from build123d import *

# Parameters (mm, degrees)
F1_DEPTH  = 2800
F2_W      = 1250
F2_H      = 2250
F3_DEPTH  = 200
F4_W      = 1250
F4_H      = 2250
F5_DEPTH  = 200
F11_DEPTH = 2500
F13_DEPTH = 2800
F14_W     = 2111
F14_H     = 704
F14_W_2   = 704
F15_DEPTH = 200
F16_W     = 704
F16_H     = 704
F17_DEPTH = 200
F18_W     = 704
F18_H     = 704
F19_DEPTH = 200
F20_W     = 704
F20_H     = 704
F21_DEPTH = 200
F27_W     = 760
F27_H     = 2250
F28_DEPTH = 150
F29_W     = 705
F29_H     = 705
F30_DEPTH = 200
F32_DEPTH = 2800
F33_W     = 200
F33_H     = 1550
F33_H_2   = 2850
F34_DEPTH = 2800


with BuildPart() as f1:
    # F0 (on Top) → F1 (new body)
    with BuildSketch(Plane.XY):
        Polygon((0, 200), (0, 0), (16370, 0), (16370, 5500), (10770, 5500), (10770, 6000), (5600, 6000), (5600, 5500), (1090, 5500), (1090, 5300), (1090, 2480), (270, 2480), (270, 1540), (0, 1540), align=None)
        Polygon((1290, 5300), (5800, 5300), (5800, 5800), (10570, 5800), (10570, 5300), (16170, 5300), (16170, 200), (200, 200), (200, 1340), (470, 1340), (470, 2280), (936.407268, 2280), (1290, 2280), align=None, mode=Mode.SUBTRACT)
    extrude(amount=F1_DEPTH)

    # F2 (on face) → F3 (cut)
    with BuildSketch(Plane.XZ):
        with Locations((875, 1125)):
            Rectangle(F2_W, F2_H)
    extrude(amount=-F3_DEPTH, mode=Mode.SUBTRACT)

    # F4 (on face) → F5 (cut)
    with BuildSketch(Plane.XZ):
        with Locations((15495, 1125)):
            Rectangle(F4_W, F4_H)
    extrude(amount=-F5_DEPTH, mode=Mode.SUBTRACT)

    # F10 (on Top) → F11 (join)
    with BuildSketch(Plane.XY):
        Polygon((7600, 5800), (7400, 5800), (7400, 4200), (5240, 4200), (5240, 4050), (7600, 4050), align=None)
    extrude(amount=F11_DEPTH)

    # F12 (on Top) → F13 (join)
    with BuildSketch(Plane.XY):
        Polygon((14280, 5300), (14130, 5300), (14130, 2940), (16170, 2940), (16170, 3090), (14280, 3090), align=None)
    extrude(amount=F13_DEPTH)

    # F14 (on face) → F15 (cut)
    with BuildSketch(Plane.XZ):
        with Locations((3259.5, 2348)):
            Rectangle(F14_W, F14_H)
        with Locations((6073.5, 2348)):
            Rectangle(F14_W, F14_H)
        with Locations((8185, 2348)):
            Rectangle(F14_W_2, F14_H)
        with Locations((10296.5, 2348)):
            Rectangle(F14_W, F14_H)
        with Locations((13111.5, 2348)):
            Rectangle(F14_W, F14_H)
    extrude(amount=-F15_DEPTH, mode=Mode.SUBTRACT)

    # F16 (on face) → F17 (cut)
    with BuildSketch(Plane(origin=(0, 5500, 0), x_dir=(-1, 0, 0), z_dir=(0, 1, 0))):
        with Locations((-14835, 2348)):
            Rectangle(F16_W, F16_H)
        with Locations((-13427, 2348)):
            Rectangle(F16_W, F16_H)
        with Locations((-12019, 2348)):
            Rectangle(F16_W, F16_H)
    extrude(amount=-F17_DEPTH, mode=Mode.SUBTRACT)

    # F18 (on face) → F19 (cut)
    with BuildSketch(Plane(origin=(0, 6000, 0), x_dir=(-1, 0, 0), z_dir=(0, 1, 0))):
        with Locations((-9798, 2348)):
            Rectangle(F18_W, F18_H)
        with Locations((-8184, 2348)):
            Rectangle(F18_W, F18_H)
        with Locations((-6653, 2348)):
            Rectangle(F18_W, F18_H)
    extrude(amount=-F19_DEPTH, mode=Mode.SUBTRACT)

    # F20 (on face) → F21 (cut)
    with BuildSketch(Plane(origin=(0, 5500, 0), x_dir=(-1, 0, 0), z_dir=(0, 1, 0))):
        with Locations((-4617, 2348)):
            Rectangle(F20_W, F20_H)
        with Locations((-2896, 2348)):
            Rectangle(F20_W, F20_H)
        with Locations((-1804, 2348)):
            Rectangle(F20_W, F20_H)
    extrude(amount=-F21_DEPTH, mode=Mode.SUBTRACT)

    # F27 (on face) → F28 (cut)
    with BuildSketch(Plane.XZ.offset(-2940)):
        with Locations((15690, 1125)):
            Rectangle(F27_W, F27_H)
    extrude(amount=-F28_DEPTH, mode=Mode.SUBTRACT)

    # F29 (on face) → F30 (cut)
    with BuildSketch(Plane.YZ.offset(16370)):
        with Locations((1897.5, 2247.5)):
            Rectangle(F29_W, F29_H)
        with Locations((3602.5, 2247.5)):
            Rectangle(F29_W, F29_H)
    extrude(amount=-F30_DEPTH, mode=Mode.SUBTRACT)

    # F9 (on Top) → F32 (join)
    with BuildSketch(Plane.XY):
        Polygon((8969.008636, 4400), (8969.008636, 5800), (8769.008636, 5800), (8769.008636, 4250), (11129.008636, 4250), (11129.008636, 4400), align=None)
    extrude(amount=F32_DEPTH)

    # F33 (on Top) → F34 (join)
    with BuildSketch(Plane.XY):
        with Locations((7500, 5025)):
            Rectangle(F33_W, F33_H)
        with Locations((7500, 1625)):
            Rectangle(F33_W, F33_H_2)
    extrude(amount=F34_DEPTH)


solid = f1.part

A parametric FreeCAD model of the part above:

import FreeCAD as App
import Part
import Sketcher
from FreeCAD import Vector


def add_polygon(sketch, points):
    """Adds a closed chain of lines whose ends are joined by coincident constraints."""
    first, n = sketch.GeometryCount, len(points)
    for a, b in zip(points, points[1:] + points[:1]):
        sketch.addGeometry(Part.LineSegment(App.Vector(*a, 0), App.Vector(*b, 0)), False)
    for i in range(n):
        sketch.addConstraint(Sketcher.Constraint("Coincident", first + i, 2, first + (i + 1) % n, 1))

doc = App.newDocument("Part")
body = doc.addObject("PartDesign::Body", "Body")

# Sketch on XY plane
sketch1 = doc.addObject("Sketcher::SketchObject", "Sketch")
body.addObject(sketch1)
sketch1.AttachmentSupport = (doc.XY_Plane, [""])
sketch1.MapMode = "FlatFace"
add_polygon(sketch1, [(0, 0), (16370, 0), (16370, 5500), (10770, 5500), (10770, 6000), (5600, 6000), (5600, 5500), (1090, 5500), (1090, 2480), (270, 2480), (270, 1540), (0, 1540)])  # lines 0-11
add_polygon(sketch1, [(1290, 2280), (1290, 5300), (5800, 5300), (5800, 5800), (10570, 5800), (10570, 5300), (16170, 5300), (16170, 200), (200, 200), (200, 1340), (470, 1340), (470, 2280)])  # lines 12-23
sketch1.addConstraint([
    Sketcher.Constraint("Horizontal", 0),
    Sketcher.Constraint("Vertical", 1),
    Sketcher.Constraint("Horizontal", 2),
    Sketcher.Constraint("Vertical", 3),
    Sketcher.Constraint("Horizontal", 4),
    Sketcher.Constraint("Vertical", 5),
    Sketcher.Constraint("Horizontal", 6),
    Sketcher.Constraint("Vertical", 7),
    Sketcher.Constraint("Horizontal", 8),
    Sketcher.Constraint("Vertical", 9),
    Sketcher.Constraint("Horizontal", 10),
    Sketcher.Constraint("Vertical", 11),
    Sketcher.Constraint("Vertical", 12),
    Sketcher.Constraint("Horizontal", 13),
    Sketcher.Constraint("Vertical", 14),
    Sketcher.Constraint("Horizontal", 15),
    Sketcher.Constraint("Vertical", 16),
    Sketcher.Constraint("Horizontal", 17),
    Sketcher.Constraint("Vertical", 18),
    Sketcher.Constraint("Horizontal", 19),
    Sketcher.Constraint("Vertical", 20),
    Sketcher.Constraint("Horizontal", 21),
    Sketcher.Constraint("Vertical", 22),
    Sketcher.Constraint("Horizontal", 23),
    Sketcher.Constraint("Coincident", 11, 2, -1, 1),
    Sketcher.Constraint("Horizontal", 2, 2, 5, 2),
    Sketcher.Constraint("Horizontal", 13, 2, 16, 2),
    Sketcher.Constraint("Equal", 6, 13),
    Sketcher.Constraint("Equal", 2, 17),
    Sketcher.Constraint("Equal", 10, 21),
    Sketcher.Constraint("Equal", 8, 23),
    Sketcher.Constraint("Equal", 7, 12),
    Sketcher.Constraint("Equal", 5, 14),
    Sketcher.Constraint("Equal", 9, 22),
    Sketcher.Constraint("DistanceX", 0, 1, 0, 2, 16370.0),
    Sketcher.Constraint("DistanceX", 2, 2, 2, 1, 5600.0),
    Sketcher.Constraint("DistanceX", 4, 2, 4, 1, 5170.0),
    Sketcher.Constraint("DistanceX", 6, 2, 6, 1, 4510.0),
    Sketcher.Constraint("DistanceX", 8, 2, 8, 1, 820.0),
    Sketcher.Constraint("DistanceX", 15, 1, 15, 2, 4770.0),
    Sketcher.Constraint("DistanceY", 1, 1, 1, 2, 5500.0),
    Sketcher.Constraint("DistanceY", 3, 1, 3, 2, 500.0),
    Sketcher.Constraint("DistanceY", 7, 2, 7, 1, 3020.0),
    Sketcher.Constraint("DistanceY", 9, 2, 9, 1, 940.0),
    Sketcher.Constraint("DistanceY", 18, 2, 18, 1, 5100.0),
    Sketcher.Constraint("DistanceX", -1, 1, 12, 2, 1290.0),
    Sketcher.Constraint("DistanceY", -1, 1, 12, 2, 5300.0),
])
pad1 = doc.addObject("PartDesign::Pad", "Pad")
body.addObject(pad1)
pad1.Profile = sketch1
pad1.Length = 2800

# Sketch on XZ plane
sketch2 = doc.addObject("Sketcher::SketchObject", "Sketch001")
body.addObject(sketch2)
sketch2.AttachmentSupport = (doc.XZ_Plane, [""])
sketch2.MapMode = "FlatFace"
add_polygon(sketch2, [(250, 2250), (250, 0), (1500, 0), (1500, 2250)])  # lines 0-3
sketch2.addConstraint([
    Sketcher.Constraint("Vertical", 0),
    Sketcher.Constraint("Horizontal", 1),
    Sketcher.Constraint("Vertical", 2),
    Sketcher.Constraint("Horizontal", 3),
    Sketcher.Constraint("PointOnObject", 0, 2, -1),
    Sketcher.Constraint("DistanceX", 1, 1, 1, 2, 1250.0),
    Sketcher.Constraint("DistanceY", 0, 2, 0, 1, 2250.0),
    Sketcher.Constraint("DistanceX", -1, 1, 0, 2, 250.0),
])
pocket1 = doc.addObject("PartDesign::Pocket", "Pocket")
body.addObject(pocket1)
pocket1.Profile = sketch2
pocket1.Length = 200

# Sketch on XZ plane
sketch3 = doc.addObject("Sketcher::SketchObject", "Sketch002")
body.addObject(sketch3)
sketch3.AttachmentSupport = (doc.XZ_Plane, [""])
sketch3.MapMode = "FlatFace"
add_polygon(sketch3, [(14870, 2250), (14870, 0), (16120, 0), (16120, 2250)])  # lines 0-3
sketch3.addConstraint([
    Sketcher.Constraint("Vertical", 0),
    Sketcher.Constraint("Horizontal", 1),
    Sketcher.Constraint("Vertical", 2),
    Sketcher.Constraint("Horizontal", 3),
    Sketcher.Constraint("PointOnObject", 0, 2, -1),
    Sketcher.Constraint("DistanceX", 1, 1, 1, 2, 1250.0),
    Sketcher.Constraint("DistanceY", 0, 2, 0, 1, 2250.0),
    Sketcher.Constraint("DistanceX", -1, 1, 0, 2, 14870.0),
])
pocket2 = doc.addObject("PartDesign::Pocket", "Pocket001")
body.addObject(pocket2)
pocket2.Profile = sketch3
pocket2.Length = 200

# Sketch on XY plane
sketch4 = doc.addObject("Sketcher::SketchObject", "Sketch003")
body.addObject(sketch4)
sketch4.AttachmentSupport = (doc.XY_Plane, [""])
sketch4.MapMode = "FlatFace"
add_polygon(sketch4, [(7600, 5800), (7400, 5800), (7400, 4200), (5240, 4200), (5240, 4050), (7600, 4050)])  # lines 0-5
sketch4.addConstraint([
    Sketcher.Constraint("Horizontal", 0),
    Sketcher.Constraint("Vertical", 1),
    Sketcher.Constraint("Horizontal", 2),
    Sketcher.Constraint("Vertical", 3),
    Sketcher.Constraint("Horizontal", 4),
    Sketcher.Constraint("Vertical", 5),
    Sketcher.Constraint("DistanceX", 0, 2, 0, 1, 200.0),
    Sketcher.Constraint("DistanceX", 2, 2, 2, 1, 2160.0),
    Sketcher.Constraint("DistanceY", 1, 2, 1, 1, 1600.0),
    Sketcher.Constraint("DistanceY", 3, 2, 3, 1, 150.0),
    Sketcher.Constraint("DistanceX", -1, 1, 0, 2, 7400.0),
    Sketcher.Constraint("DistanceY", -1, 1, 0, 2, 5800.0),
])
pad2 = doc.addObject("PartDesign::Pad", "Pad001")
body.addObject(pad2)
pad2.Profile = sketch4
pad2.Length = 2500

# Sketch on XY plane
sketch5 = doc.addObject("Sketcher::SketchObject", "Sketch004")
body.addObject(sketch5)
sketch5.AttachmentSupport = (doc.XY_Plane, [""])
sketch5.MapMode = "FlatFace"
add_polygon(sketch5, [(14280, 5300), (14130, 5300), (14130, 2940), (16170, 2940), (16170, 3090), (14280, 3090)])  # lines 0-5
sketch5.addConstraint([
    Sketcher.Constraint("Horizontal", 0),
    Sketcher.Constraint("Vertical", 1),
    Sketcher.Constraint("Horizontal", 2),
    Sketcher.Constraint("Vertical", 3),
    Sketcher.Constraint("Horizontal", 4),
    Sketcher.Constraint("Vertical", 5),
    Sketcher.Constraint("Equal", 0, 3),
    Sketcher.Constraint("DistanceX", 0, 2, 0, 1, 150.0),
    Sketcher.Constraint("DistanceX", 2, 1, 2, 2, 2040.0),
    Sketcher.Constraint("DistanceY", 1, 2, 1, 1, 2360.0),
    Sketcher.Constraint("DistanceX", -1, 1, 0, 2, 14130.0),
    Sketcher.Constraint("DistanceY", -1, 1, 0, 2, 5300.0),
])
pad3 = doc.addObject("PartDesign::Pad", "Pad002")
body.addObject(pad3)
pad3.Profile = sketch5
pad3.Length = 2800

# Sketch on XZ plane
sketch6 = doc.addObject("Sketcher::SketchObject", "Sketch005")
body.addObject(sketch6)
sketch6.AttachmentSupport = (doc.XZ_Plane, [""])
sketch6.MapMode = "FlatFace"
add_polygon(sketch6, [(2204, 2700), (2204, 1996), (4315, 1996), (4315, 2700)])  # lines 0-3
add_polygon(sketch6, [(5018, 2700), (5018, 1996), (7129, 1996), (7129, 2700)])  # lines 4-7
add_polygon(sketch6, [(7833, 2700), (7833, 1996), (8537, 1996), (8537, 2700)])  # lines 8-11
add_polygon(sketch6, [(9241, 2700), (9241, 1996), (11352, 1996), (11352, 2700)])  # lines 12-15
add_polygon(sketch6, [(12056, 2700), (12056, 1996), (14167, 1996), (14167, 2700)])  # lines 16-19
sketch6.addConstraint([
    Sketcher.Constraint("Vertical", 0),
    Sketcher.Constraint("Horizontal", 1),
    Sketcher.Constraint("Vertical", 2),
    Sketcher.Constraint("Horizontal", 3),
    Sketcher.Constraint("Vertical", 4),
    Sketcher.Constraint("Horizontal", 5),
    Sketcher.Constraint("Vertical", 6),
    Sketcher.Constraint("Horizontal", 7),
    Sketcher.Constraint("Vertical", 8),
    Sketcher.Constraint("Horizontal", 9),
    Sketcher.Constraint("Vertical", 10),
    Sketcher.Constraint("Horizontal", 11),
    Sketcher.Constraint("Vertical", 12),
    Sketcher.Constraint("Horizontal", 13),
    Sketcher.Constraint("Vertical", 14),
    Sketcher.Constraint("Horizontal", 15),
    Sketcher.Constraint("Vertical", 16),
    Sketcher.Constraint("Horizontal", 17),
    Sketcher.Constraint("Vertical", 18),
    Sketcher.Constraint("Horizontal", 19),
    Sketcher.Constraint("Horizontal", 1, 2, 4, 2),
    Sketcher.Constraint("Horizontal", 3, 2, 6, 2),
    Sketcher.Constraint("Horizontal", 5, 2, 8, 2),
    Sketcher.Constraint("Horizontal", 7, 2, 10, 2),
    Sketcher.Constraint("Horizontal", 9, 2, 12, 2),
    Sketcher.Constraint("Horizontal", 11, 2, 14, 2),
    Sketcher.Constraint("Horizontal", 13, 2, 16, 2),
    Sketcher.Constraint("Horizontal", 15, 2, 18, 2),
    Sketcher.Constraint("Equal", 3, 5),
    Sketcher.Constraint("Equal", 7, 13),
    Sketcher.Constraint("Equal", 15, 17),
    Sketcher.Constraint("Equal", 11, 0),
    Sketcher.Constraint("DistanceX", 1, 1, 1, 2, 2111.0),
    Sketcher.Constraint("DistanceX", 9, 1, 9, 2, 704.0),
    Sketcher.Constraint("DistanceX", -1, 1, 0, 2, 2204.0),
    Sketcher.Constraint("DistanceY", -1, 1, 0, 2, 1996.0),
    Sketcher.Constraint("DistanceX", -1, 1, 4, 2, 5018.0),
    Sketcher.Constraint("DistanceX", -1, 1, 8, 2, 7833.0),
    Sketcher.Constraint("DistanceX", -1, 1, 12, 2, 9241.0),
    Sketcher.Constraint("DistanceX", -1, 1, 16, 2, 12056.0),
])
pocket3 = doc.addObject("PartDesign::Pocket", "Pocket002")
body.addObject(pocket3)
pocket3.Profile = sketch6
pocket3.Length = 200

# Sketch on XZ plane
sketch7 = doc.addObject("Sketcher::SketchObject", "Sketch006")
body.addObject(sketch7)
sketch7.AttachmentSupport = (doc.XZ_Plane, [""])
sketch7.MapMode = "FlatFace"
sketch7.AttachmentOffset = App.Placement(Vector(0, 0, -5500), App.Rotation())
add_polygon(sketch7, [(15187, 2700), (15187, 1996), (14483, 1996), (14483, 2700)])  # lines 0-3
add_polygon(sketch7, [(13779, 2700), (13779, 1996), (13075, 1996), (13075, 2700)])  # lines 4-7
add_polygon(sketch7, [(12371, 2700), (12371, 1996), (11667, 1996), (11667, 2700)])  # lines 8-11
sketch7.addConstraint([
    Sketcher.Constraint("Vertical", 0),
    Sketcher.Constraint("Horizontal", 1),
    Sketcher.Constraint("Vertical", 2),
    Sketcher.Constraint("Horizontal", 3),
    Sketcher.Constraint("Vertical", 4),
    Sketcher.Constraint("Horizontal", 5),
    Sketcher.Constraint("Vertical", 6),
    Sketcher.Constraint("Horizontal", 7),
    Sketcher.Constraint("Vertical", 8),
    Sketcher.Constraint("Horizontal", 9),
    Sketcher.Constraint("Vertical", 10),
    Sketcher.Constraint("Horizontal", 11),
    Sketcher.Constraint("Horizontal", 1, 2, 4, 2),
    Sketcher.Constraint("Horizontal", 3, 2, 6, 2),
    Sketcher.Constraint("Horizontal", 5, 2, 8, 2),
    Sketcher.Constraint("Horizontal", 7, 2, 10, 2),
    Sketcher.Constraint("Equal", 3, 5),
    Sketcher.Constraint("Equal", 7, 9),
    Sketcher.Constraint("Equal", 11, 0),
    Sketcher.Constraint("DistanceX", 1, 2, 1, 1, 704.0),
    Sketcher.Constraint("DistanceX", -1, 1, 0, 2, 15187.0),
    Sketcher.Constraint("DistanceY", -1, 1, 0, 2, 1996.0),
    Sketcher.Constraint("DistanceX", -1, 1, 4, 2, 13779.0),
    Sketcher.Constraint("DistanceX", -1, 1, 8, 2, 12371.0),
])
pocket4 = doc.addObject("PartDesign::Pocket", "Pocket003")
body.addObject(pocket4)
pocket4.Profile = sketch7
pocket4.Length = 200
pocket4.Reversed = True

# Sketch on XZ plane
sketch8 = doc.addObject("Sketcher::SketchObject", "Sketch007")
body.addObject(sketch8)
sketch8.AttachmentSupport = (doc.XZ_Plane, [""])
sketch8.MapMode = "FlatFace"
sketch8.AttachmentOffset = App.Placement(Vector(0, 0, -6000), App.Rotation())
add_polygon(sketch8, [(10150, 2700), (10150, 1996), (9446, 1996), (9446, 2700)])  # lines 0-3
add_polygon(sketch8, [(8536, 2700), (8536, 1996), (7832, 1996), (7832, 2700)])  # lines 4-7
add_polygon(sketch8, [(7005, 2700), (7005, 1996), (6301, 1996), (6301, 2700)])  # lines 8-11
sketch8.addConstraint([
    Sketcher.Constraint("Vertical", 0),
    Sketcher.Constraint("Horizontal", 1),
    Sketcher.Constraint("Vertical", 2),
    Sketcher.Constraint("Horizontal", 3),
    Sketcher.Constraint("Vertical", 4),
    Sketcher.Constraint("Horizontal", 5),
    Sketcher.Constraint("Vertical", 6),
    Sketcher.Constraint("Horizontal", 7),
    Sketcher.Constraint("Vertical", 8),
    Sketcher.Constraint("Horizontal", 9),
    Sketcher.Constraint("Vertical", 10),
    Sketcher.Constraint("Horizontal", 11),
    Sketcher.Constraint("Horizontal", 1, 2, 4, 2),
    Sketcher.Constraint("Horizontal", 3, 2, 6, 2),
    Sketcher.Constraint("Horizontal", 5, 2, 8, 2),
    Sketcher.Constraint("Horizontal", 7, 2, 10, 2),
    Sketcher.Constraint("Equal", 3, 5),
    Sketcher.Constraint("Equal", 7, 9),
    Sketcher.Constraint("Equal", 11, 0),
    Sketcher.Constraint("DistanceX", 1, 2, 1, 1, 704.0),
    Sketcher.Constraint("DistanceX", -1, 1, 0, 2, 10150.0),
    Sketcher.Constraint("DistanceY", -1, 1, 0, 2, 1996.0),
    Sketcher.Constraint("DistanceX", -1, 1, 4, 2, 8536.0),
    Sketcher.Constraint("DistanceX", -1, 1, 8, 2, 7005.0),
])
pocket5 = doc.addObject("PartDesign::Pocket", "Pocket004")
body.addObject(pocket5)
pocket5.Profile = sketch8
pocket5.Length = 200
pocket5.Reversed = True

# Sketch on XZ plane
sketch9 = doc.addObject("Sketcher::SketchObject", "Sketch008")
body.addObject(sketch9)
sketch9.AttachmentSupport = (doc.XZ_Plane, [""])
sketch9.MapMode = "FlatFace"
sketch9.AttachmentOffset = App.Placement(Vector(0, 0, -5500), App.Rotation())
add_polygon(sketch9, [(4969, 2700), (4969, 1996), (4265, 1996), (4265, 2700)])  # lines 0-3
add_polygon(sketch9, [(3248, 2700), (3248, 1996), (2544, 1996), (2544, 2700)])  # lines 4-7
add_polygon(sketch9, [(2156, 2700), (2156, 1996), (1452, 1996), (1452, 2700)])  # lines 8-11
sketch9.addConstraint([
    Sketcher.Constraint("Vertical", 0),
    Sketcher.Constraint("Horizontal", 1),
    Sketcher.Constraint("Vertical", 2),
    Sketcher.Constraint("Horizontal", 3),
    Sketcher.Constraint("Vertical", 4),
    Sketcher.Constraint("Horizontal", 5),
    Sketcher.Constraint("Vertical", 6),
    Sketcher.Constraint("Horizontal", 7),
    Sketcher.Constraint("Vertical", 8),
    Sketcher.Constraint("Horizontal", 9),
    Sketcher.Constraint("Vertical", 10),
    Sketcher.Constraint("Horizontal", 11),
    Sketcher.Constraint("Horizontal", 1, 2, 4, 2),
    Sketcher.Constraint("Horizontal", 3, 2, 6, 2),
    Sketcher.Constraint("Horizontal", 5, 2, 8, 2),
    Sketcher.Constraint("Horizontal", 7, 2, 10, 2),
    Sketcher.Constraint("Equal", 3, 5),
    Sketcher.Constraint("Equal", 7, 9),
    Sketcher.Constraint("Equal", 11, 0),
    Sketcher.Constraint("DistanceX", 1, 2, 1, 1, 704.0),
    Sketcher.Constraint("DistanceX", -1, 1, 0, 2, 4969.0),
    Sketcher.Constraint("DistanceY", -1, 1, 0, 2, 1996.0),
    Sketcher.Constraint("DistanceX", -1, 1, 4, 2, 3248.0),
    Sketcher.Constraint("DistanceX", -1, 1, 8, 2, 2156.0),
])
pocket6 = doc.addObject("PartDesign::Pocket", "Pocket005")
body.addObject(pocket6)
pocket6.Profile = sketch9
pocket6.Length = 200
pocket6.Reversed = True

# Sketch on XZ plane
sketch10 = doc.addObject("Sketcher::SketchObject", "Sketch009")
body.addObject(sketch10)
sketch10.AttachmentSupport = (doc.XZ_Plane, [""])
sketch10.MapMode = "FlatFace"
sketch10.AttachmentOffset = App.Placement(Vector(0, 0, -2940), App.Rotation())
add_polygon(sketch10, [(15310, 2250), (15310, 0), (16070, 0), (16070, 2250)])  # lines 0-3
sketch10.addConstraint([
    Sketcher.Constraint("Vertical", 0),
    Sketcher.Constraint("Horizontal", 1),
    Sketcher.Constraint("Vertical", 2),
    Sketcher.Constraint("Horizontal", 3),
    Sketcher.Constraint("PointOnObject", 0, 2, -1),
    Sketcher.Constraint("DistanceX", 1, 1, 1, 2, 760.0),
    Sketcher.Constraint("DistanceY", 0, 2, 0, 1, 2250.0),
    Sketcher.Constraint("DistanceX", -1, 1, 0, 2, 15310.0),
])
pocket7 = doc.addObject("PartDesign::Pocket", "Pocket006")
body.addObject(pocket7)
pocket7.Profile = sketch10
pocket7.Length = 150

# Sketch on YZ plane
sketch11 = doc.addObject("Sketcher::SketchObject", "Sketch010")
body.addObject(sketch11)
sketch11.AttachmentSupport = (doc.YZ_Plane, [""])
sketch11.MapMode = "FlatFace"
sketch11.AttachmentOffset = App.Placement(Vector(0, 0, 16370), App.Rotation())
add_polygon(sketch11, [(1545, 2600), (1545, 1895), (2250, 1895), (2250, 2600)])  # lines 0-3
add_polygon(sketch11, [(3250, 2600), (3250, 1895), (3955, 1895), (3955, 2600)])  # lines 4-7
sketch11.addConstraint([
    Sketcher.Constraint("Vertical", 0),
    Sketcher.Constraint("Horizontal", 1),
    Sketcher.Constraint("Vertical", 2),
    Sketcher.Constraint("Horizontal", 3),
    Sketcher.Constraint("Vertical", 4),
    Sketcher.Constraint("Horizontal", 5),
    Sketcher.Constraint("Vertical", 6),
    Sketcher.Constraint("Horizontal", 7),
    Sketcher.Constraint("Horizontal", 1, 2, 4, 2),
    Sketcher.Constraint("Horizontal", 3, 2, 6, 2),
    Sketcher.Constraint("Equal", 3, 5),
    Sketcher.Constraint("Equal", 7, 0),
    Sketcher.Constraint("DistanceX", 1, 1, 1, 2, 705.0),
    Sketcher.Constraint("DistanceX", -1, 1, 0, 2, 1545.0),
    Sketcher.Constraint("DistanceY", -1, 1, 0, 2, 1895.0),
    Sketcher.Constraint("DistanceX", -1, 1, 4, 2, 3250.0),
])
pocket8 = doc.addObject("PartDesign::Pocket", "Pocket007")
body.addObject(pocket8)
pocket8.Profile = sketch11
pocket8.Length = 200

# Sketch on XY plane
sketch12 = doc.addObject("Sketcher::SketchObject", "Sketch011")
body.addObject(sketch12)
sketch12.AttachmentSupport = (doc.XY_Plane, [""])
sketch12.MapMode = "FlatFace"
add_polygon(sketch12, [(8969, 4400), (8969, 5800), (8769, 5800), (8769, 4250), (11129, 4250), (11129, 4400)])  # lines 0-5
sketch12.addConstraint([
    Sketcher.Constraint("Vertical", 0),
    Sketcher.Constraint("Horizontal", 1),
    Sketcher.Constraint("Vertical", 2),
    Sketcher.Constraint("Horizontal", 3),
    Sketcher.Constraint("Vertical", 4),
    Sketcher.Constraint("Horizontal", 5),
    Sketcher.Constraint("DistanceX", 1, 2, 1, 1, 200.0),
    Sketcher.Constraint("DistanceX", 3, 1, 3, 2, 2360.0),
    Sketcher.Constraint("DistanceY", 0, 1, 0, 2, 1400.0),
    Sketcher.Constraint("DistanceY", 2, 2, 2, 1, 1550.0),
    Sketcher.Constraint("DistanceY", -1, 1, 0, 2, 5800.0),
    Sketcher.Constraint("DistanceX", -1, 1, 0, 2, 8969.008636),
])
pad4 = doc.addObject("PartDesign::Pad", "Pad003")
body.addObject(pad4)
pad4.Profile = sketch12
pad4.Length = 2800

# Sketch on XY plane
sketch13 = doc.addObject("Sketcher::SketchObject", "Sketch012")
body.addObject(sketch13)
sketch13.AttachmentSupport = (doc.XY_Plane, [""])
sketch13.MapMode = "FlatFace"
add_polygon(sketch13, [(7400, 5800), (7400, 4250), (7600, 4250), (7600, 5800)])  # lines 0-3
add_polygon(sketch13, [(7400, 3050), (7400, 200), (7600, 200), (7600, 3050)])  # lines 4-7
sketch13.addConstraint([
    Sketcher.Constraint("Vertical", 0),
    Sketcher.Constraint("Horizontal", 1),
    Sketcher.Constraint("Vertical", 2),
    Sketcher.Constraint("Horizontal", 3),
    Sketcher.Constraint("Vertical", 4),
    Sketcher.Constraint("Horizontal", 5),
    Sketcher.Constraint("Vertical", 6),
    Sketcher.Constraint("Horizontal", 7),
    Sketcher.Constraint("Vertical", 3, 2, 4, 2),
    Sketcher.Constraint("Vertical", 2, 2, 5, 2),
    Sketcher.Constraint("DistanceX", 1, 1, 1, 2, 200.0),
    Sketcher.Constraint("DistanceY", 0, 2, 0, 1, 1550.0),
    Sketcher.Constraint("DistanceY", 4, 2, 4, 1, 2850.0),
    Sketcher.Constraint("DistanceX", -1, 1, 0, 2, 7400.0),
    Sketcher.Constraint("DistanceY", -1, 1, 0, 2, 4250.0),
    Sketcher.Constraint("DistanceY", -1, 1, 4, 2, 200.0),
])
pad5 = doc.addObject("PartDesign::Pad", "Pad004")
body.addObject(pad5)
pad5.Profile = sketch13
pad5.Length = 2800

doc.recompute()
